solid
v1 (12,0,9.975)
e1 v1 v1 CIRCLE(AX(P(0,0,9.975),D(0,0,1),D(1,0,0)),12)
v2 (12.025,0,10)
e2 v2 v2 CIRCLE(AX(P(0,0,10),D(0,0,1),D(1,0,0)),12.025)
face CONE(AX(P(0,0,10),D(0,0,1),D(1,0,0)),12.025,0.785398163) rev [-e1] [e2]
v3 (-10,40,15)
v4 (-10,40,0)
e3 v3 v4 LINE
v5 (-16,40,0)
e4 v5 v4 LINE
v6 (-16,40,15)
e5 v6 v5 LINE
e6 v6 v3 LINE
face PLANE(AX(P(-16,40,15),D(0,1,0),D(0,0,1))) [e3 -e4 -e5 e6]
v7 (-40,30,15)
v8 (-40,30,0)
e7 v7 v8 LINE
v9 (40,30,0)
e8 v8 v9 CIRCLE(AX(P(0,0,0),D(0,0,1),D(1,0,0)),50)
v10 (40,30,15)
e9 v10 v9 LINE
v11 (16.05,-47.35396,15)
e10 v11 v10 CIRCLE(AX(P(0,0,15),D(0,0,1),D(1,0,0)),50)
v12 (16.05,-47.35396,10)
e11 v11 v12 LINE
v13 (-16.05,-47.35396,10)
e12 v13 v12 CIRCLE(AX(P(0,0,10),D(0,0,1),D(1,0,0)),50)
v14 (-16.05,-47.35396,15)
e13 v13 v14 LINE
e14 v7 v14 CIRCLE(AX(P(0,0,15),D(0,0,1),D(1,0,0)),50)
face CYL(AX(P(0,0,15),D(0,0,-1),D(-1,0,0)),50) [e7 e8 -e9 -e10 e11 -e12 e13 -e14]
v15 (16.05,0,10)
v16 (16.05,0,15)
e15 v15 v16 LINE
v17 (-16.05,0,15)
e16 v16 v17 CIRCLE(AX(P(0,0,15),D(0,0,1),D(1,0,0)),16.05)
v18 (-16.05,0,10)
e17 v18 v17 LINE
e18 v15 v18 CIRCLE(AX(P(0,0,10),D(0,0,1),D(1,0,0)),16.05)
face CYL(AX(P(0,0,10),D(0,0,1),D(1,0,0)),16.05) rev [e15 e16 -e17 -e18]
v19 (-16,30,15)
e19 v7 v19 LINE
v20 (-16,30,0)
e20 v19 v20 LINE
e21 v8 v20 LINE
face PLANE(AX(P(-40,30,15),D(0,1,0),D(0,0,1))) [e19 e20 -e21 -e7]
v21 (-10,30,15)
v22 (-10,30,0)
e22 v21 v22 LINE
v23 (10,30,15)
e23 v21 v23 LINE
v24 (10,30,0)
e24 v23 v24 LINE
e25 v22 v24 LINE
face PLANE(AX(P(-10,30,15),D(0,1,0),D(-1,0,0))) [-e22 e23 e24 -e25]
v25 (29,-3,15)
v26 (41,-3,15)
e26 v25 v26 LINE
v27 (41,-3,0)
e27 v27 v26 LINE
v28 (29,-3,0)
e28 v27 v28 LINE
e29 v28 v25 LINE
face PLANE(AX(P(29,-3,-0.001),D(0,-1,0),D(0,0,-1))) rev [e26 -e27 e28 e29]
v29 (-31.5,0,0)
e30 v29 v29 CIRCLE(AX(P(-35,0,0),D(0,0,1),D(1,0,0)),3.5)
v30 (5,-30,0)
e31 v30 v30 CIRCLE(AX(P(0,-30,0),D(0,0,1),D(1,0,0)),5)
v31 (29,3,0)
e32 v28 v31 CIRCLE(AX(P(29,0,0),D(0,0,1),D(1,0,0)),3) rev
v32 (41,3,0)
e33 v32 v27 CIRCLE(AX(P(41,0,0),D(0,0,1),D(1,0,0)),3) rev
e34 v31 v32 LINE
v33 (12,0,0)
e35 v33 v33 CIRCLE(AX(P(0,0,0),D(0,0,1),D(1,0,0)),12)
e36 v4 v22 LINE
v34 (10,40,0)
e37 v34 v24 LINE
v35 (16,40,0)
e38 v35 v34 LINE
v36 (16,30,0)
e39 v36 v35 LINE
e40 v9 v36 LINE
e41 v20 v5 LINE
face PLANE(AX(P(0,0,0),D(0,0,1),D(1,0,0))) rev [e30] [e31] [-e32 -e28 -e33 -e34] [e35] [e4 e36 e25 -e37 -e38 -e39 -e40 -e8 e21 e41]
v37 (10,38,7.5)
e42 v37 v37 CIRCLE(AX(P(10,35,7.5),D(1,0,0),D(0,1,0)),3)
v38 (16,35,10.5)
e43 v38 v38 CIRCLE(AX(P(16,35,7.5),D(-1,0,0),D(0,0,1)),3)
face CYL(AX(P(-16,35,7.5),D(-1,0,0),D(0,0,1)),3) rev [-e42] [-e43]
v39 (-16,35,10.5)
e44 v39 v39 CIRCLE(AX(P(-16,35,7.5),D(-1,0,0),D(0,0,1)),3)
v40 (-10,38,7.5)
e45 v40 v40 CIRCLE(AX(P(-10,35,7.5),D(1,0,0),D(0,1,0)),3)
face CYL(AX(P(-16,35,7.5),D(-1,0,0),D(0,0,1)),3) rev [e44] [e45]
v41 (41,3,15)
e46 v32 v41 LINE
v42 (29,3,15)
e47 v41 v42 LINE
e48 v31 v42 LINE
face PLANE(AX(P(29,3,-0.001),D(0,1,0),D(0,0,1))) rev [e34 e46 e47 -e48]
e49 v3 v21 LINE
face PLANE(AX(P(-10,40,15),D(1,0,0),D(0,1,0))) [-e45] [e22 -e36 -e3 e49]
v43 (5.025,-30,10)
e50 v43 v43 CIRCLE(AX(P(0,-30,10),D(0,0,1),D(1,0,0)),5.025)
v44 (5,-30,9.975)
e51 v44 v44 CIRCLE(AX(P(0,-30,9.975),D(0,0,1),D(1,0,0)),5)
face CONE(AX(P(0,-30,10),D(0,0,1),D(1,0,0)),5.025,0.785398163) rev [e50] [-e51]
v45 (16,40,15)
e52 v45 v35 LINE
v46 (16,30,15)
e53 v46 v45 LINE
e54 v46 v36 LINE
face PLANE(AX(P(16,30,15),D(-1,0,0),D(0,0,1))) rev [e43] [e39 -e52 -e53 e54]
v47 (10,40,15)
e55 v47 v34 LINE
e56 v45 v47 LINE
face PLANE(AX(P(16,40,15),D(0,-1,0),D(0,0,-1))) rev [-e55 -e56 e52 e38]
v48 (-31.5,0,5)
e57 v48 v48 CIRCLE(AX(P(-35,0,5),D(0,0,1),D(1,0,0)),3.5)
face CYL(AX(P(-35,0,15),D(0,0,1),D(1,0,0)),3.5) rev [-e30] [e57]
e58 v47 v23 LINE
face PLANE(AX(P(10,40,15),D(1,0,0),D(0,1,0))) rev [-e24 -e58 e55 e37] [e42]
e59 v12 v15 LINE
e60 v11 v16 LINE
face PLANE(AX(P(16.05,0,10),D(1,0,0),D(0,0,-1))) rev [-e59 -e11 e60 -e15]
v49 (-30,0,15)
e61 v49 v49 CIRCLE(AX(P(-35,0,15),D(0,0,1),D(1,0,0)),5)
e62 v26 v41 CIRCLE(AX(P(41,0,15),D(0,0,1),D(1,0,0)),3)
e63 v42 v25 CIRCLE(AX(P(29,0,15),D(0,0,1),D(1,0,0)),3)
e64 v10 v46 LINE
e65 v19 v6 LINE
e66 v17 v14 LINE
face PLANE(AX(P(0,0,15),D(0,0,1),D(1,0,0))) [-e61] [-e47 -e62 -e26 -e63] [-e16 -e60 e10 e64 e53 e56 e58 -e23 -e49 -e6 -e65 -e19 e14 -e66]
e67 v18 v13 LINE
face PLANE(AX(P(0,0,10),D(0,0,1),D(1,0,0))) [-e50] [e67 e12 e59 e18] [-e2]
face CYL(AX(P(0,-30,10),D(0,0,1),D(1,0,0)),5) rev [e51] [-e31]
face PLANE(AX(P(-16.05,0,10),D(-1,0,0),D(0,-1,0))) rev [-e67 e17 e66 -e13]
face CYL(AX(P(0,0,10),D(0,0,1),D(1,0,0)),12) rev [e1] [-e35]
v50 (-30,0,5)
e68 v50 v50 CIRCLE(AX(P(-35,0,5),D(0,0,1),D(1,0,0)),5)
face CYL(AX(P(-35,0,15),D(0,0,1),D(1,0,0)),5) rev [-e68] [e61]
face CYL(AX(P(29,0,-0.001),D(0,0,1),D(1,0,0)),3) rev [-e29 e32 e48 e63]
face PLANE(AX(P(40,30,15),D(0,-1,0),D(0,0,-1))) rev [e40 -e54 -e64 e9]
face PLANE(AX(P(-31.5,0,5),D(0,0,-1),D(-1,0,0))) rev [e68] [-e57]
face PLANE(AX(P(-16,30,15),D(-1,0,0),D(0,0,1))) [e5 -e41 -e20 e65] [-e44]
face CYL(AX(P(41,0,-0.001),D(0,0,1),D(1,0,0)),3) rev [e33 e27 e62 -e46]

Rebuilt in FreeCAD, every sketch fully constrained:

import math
import FreeCAD as App
import Part
import Sketcher
Q = App.Units.Quantity

doc = App.newDocument("Part")
body = doc.addObject("PartDesign::Body", "Body")

sketch1 = doc.addObject("Sketcher::SketchObject", "Sketch")
body.addObject(sketch1)
sketch1.AttachmentSupport = (doc.XY_Plane, [""])
sketch1.MapMode = "FlatFace"
sketch1.addGeometry([
    Part.LineSegment(App.Vector(-16, 30, 0), App.Vector(-40, 30, 0)),
    Part.ArcOfCircle(Part.Circle(App.Vector(0, 0, 0), App.Vector(0, 0, 1), 50), math.radians(143), math.radians(397)),
    Part.LineSegment(App.Vector(40, 30, 0), App.Vector(16, 30, 0)),
    Part.LineSegment(App.Vector(16, 30, 0), App.Vector(16, 40, 0)),
    Part.LineSegment(App.Vector(16, 40, 0), App.Vector(10, 40, 0)),
    Part.LineSegment(App.Vector(10, 40, 0), App.Vector(10, 30, 0)),
    Part.LineSegment(App.Vector(10, 30, 0), App.Vector(-10, 30, 0)),
    Part.LineSegment(App.Vector(-10, 30, 0), App.Vector(-10, 40, 0)),
    Part.LineSegment(App.Vector(-10, 40, 0), App.Vector(-16, 40, 0)),
    Part.LineSegment(App.Vector(-16, 40, 0), App.Vector(-16, 30, 0)),
], False)
sketch1.addConstraint([
    Sketcher.Constraint("Coincident", 0, 2, 1, 1),
    Sketcher.Constraint("Coincident", 1, 2, 2, 1),
    Sketcher.Constraint("Coincident", 2, 2, 3, 1),
    Sketcher.Constraint("Coincident", 3, 2, 4, 1),
    Sketcher.Constraint("Coincident", 4, 2, 5, 1),
    Sketcher.Constraint("Coincident", 5, 2, 6, 1),
    Sketcher.Constraint("Coincident", 6, 2, 7, 1),
    Sketcher.Constraint("Coincident", 7, 2, 8, 1),
    Sketcher.Constraint("Coincident", 8, 2, 9, 1),
    Sketcher.Constraint("Coincident", 9, 2, 0, 1),
    Sketcher.Constraint("Horizontal", 0),
    Sketcher.Constraint("Horizontal", 2),
    Sketcher.Constraint("Vertical", 3),
    Sketcher.Constraint("Horizontal", 4),
    Sketcher.Constraint("Vertical", 5),
    Sketcher.Constraint("Horizontal", 6),
    Sketcher.Constraint("Vertical", 7),
    Sketcher.Constraint("Horizontal", 8),
    Sketcher.Constraint("Vertical", 9),
    Sketcher.Constraint("Coincident", 1, 3, -1, 1),
    Sketcher.Constraint("Symmetric", 4, 2, 7, 2, -2),
    Sketcher.Constraint("Symmetric", 2, 2, 9, 2, -2),
    Sketcher.Constraint("Horizontal", 2, 2, 5, 2),
    Sketcher.Constraint("Radius", 1, 50.0),
    Sketcher.Constraint("DistanceX", 0, 2, 0, 1, 24.0),
    Sketcher.Constraint("DistanceX", 4, 2, 4, 1, 6.0),
    Sketcher.Constraint("DistanceX", 6, 2, 6, 1, 20.0),
    Sketcher.Constraint("DistanceY", 3, 1, 3, 2, 10.0),
])
pad1 = doc.addObject("PartDesign::Pad", "Pad")
body.addObject(pad1)
pad1.Profile = sketch1
pad1.Length = 15

sketch2 = doc.addObject("Sketcher::SketchObject", "Sketch001")
body.addObject(sketch2)
sketch2.AttachmentSupport = (doc.XY_Plane, [""])
sketch2.MapMode = "FlatFace"
sketch2.AttachmentOffset = App.Placement(App.Vector(0, 0, 15), App.Rotation())
sketch2.addGeometry([
    Part.LineSegment(App.Vector(16, -60, 0), App.Vector(16, 0, 0)),
    Part.ArcOfCircle(Part.Circle(App.Vector(0, 0, 0), App.Vector(0, 0, 1), 16), math.radians(0), math.radians(180)),
    Part.LineSegment(App.Vector(-16, 0, 0), App.Vector(-16, -60, 0)),
    Part.ArcOfCircle(Part.Circle(App.Vector(0, -60, 0), App.Vector(0, 0, 1), 16), math.radians(180), math.radians(360)),
], False)
sketch2.addConstraint([
    Sketcher.Constraint("Tangent", 0, 2, 1, 1),
    Sketcher.Constraint("Tangent", 1, 2, 2, 1),
    Sketcher.Constraint("Tangent", 2, 2, 3, 1),
    Sketcher.Constraint("Tangent", 3, 2, 0, 1),
    Sketcher.Constraint("Vertical", 0),
    Sketcher.Constraint("Vertical", 2),
    Sketcher.Constraint("Coincident", 1, 3, -1, 1),
    Sketcher.Constraint("DistanceY", 0, 1, 0, 2, 60.0),
    Sketcher.Constraint("Radius", 1, 16.05),
])
pocket1 = doc.addObject("PartDesign::Pocket", "Pocket")
body.addObject(pocket1)
pocket1.Profile = sketch2
pocket1.Length = 5

sketch3 = doc.addObject("Sketcher::SketchObject", "Sketch002")
body.addObject(sketch3)
sketch3.AttachmentSupport = (doc.XY_Plane, [""])
sketch3.MapMode = "FlatFace"
sketch3.AttachmentOffset = App.Placement(App.Vector(0, 0, 15), App.Rotation())
sketch3.addGeometry([
    Part.LineSegment(App.Vector(41, 3, 0), App.Vector(29, 3, 0)),
    Part.ArcOfCircle(Part.Circle(App.Vector(29, 0, 0), App.Vector(0, 0, 1), 3), math.radians(90), math.radians(270)),
    Part.LineSegment(App.Vector(29, -3, 0), App.Vector(41, -3, 0)),
    Part.ArcOfCircle(Part.Circle(App.Vector(41, 0, 0), App.Vector(0, 0, 1), 3), math.radians(-90), math.radians(90)),
], False)
sketch3.addConstraint([
    Sketcher.Constraint("Tangent", 0, 2, 1, 1),
    Sketcher.Constraint("Tangent", 1, 2, 2, 1),
    Sketcher.Constraint("Tangent", 2, 2, 3, 1),
    Sketcher.Constraint("Tangent", 3, 2, 0, 1),
    Sketcher.Constraint("Horizontal", 0),
    Sketcher.Constraint("Horizontal", 2),
    Sketcher.Constraint("PointOnObject", 1, 3, -1),
    Sketcher.Constraint("Radius", 1, 3.0),
    Sketcher.Constraint("DistanceX", 0, 2, 0, 1, 12.0),
    Sketcher.Constraint("DistanceX", -1, 1, 1, 3, 29.0),
])
pocket2 = doc.addObject("PartDesign::Pocket", "Pocket001")
body.addObject(pocket2)
pocket2.Profile = sketch3
pocket2.Type = "UpToFirst"

sketch4 = doc.addObject("Sketcher::SketchObject", "Sketch003")
body.addObject(sketch4)
sketch4.AttachmentSupport = (doc.YZ_Plane, [""])
sketch4.MapMode = "FlatFace"
sketch4.addGeometry([
    Part.LineSegment(App.Vector(0, -0.001, 0), App.Vector(0, 10, 0)),
    Part.LineSegment(App.Vector(0, 10, 0), App.Vector(-12.025, 10, 0)),
    Part.LineSegment(App.Vector(-12.025, 10, 0), App.Vector(-12, 9.975, 0)),
    Part.LineSegment(App.Vector(-12, 9.975, 0), App.Vector(-12, -0.001, 0)),
    Part.LineSegment(App.Vector(-12, -0.001, 0), App.Vector(0, -0.001, 0)),
], False)
sketch4.addConstraint([
    Sketcher.Constraint("Coincident", 0, 2, 1, 1),
    Sketcher.Constraint("Coincident", 1, 2, 2, 1),
    Sketcher.Constraint("Coincident", 2, 2, 3, 1),
    Sketcher.Constraint("Coincident", 3, 2, 4, 1),
    Sketcher.Constraint("Coincident", 4, 2, 0, 1),
    Sketcher.Constraint("Vertical", 0),
    Sketcher.Constraint("Horizontal", 1),
    Sketcher.Constraint("Vertical", 3),
    Sketcher.Constraint("Horizontal", 4),
    Sketcher.Constraint("PointOnObject", 0, 2, -2),
    Sketcher.Constraint("DistanceX", 4, 1, 4, 2, 12.0),
    Sketcher.Constraint("Angle", 2, Q("-45 deg")),
    Sketcher.Constraint("DistanceY", -1, 1, 0, 2, 10.0),
    Sketcher.Constraint("DistanceX", 1, 2, 1, 1, 12.025),
    Sketcher.Constraint("DistanceY", 0, 1, 0, 2, 10.001),
])
groove = doc.addObject("PartDesign::Groove", "Groove")
body.addObject(groove)
groove.Profile = sketch4
groove.ReferenceAxis = (sketch4, ["V_Axis"])
groove.Angle = 360

sketch5 = doc.addObject("Sketcher::SketchObject", "Sketch004")
body.addObject(sketch5)
sketch5.AttachmentSupport = (doc.YZ_Plane, [""])
sketch5.MapMode = "FlatFace"
sketch5.addGeometry([
    Part.LineSegment(App.Vector(-30, -0.001, 0), App.Vector(-30, 10, 0)),
    Part.LineSegment(App.Vector(-30, 10, 0), App.Vector(-35.025, 10, 0)),
    Part.LineSegment(App.Vector(-35.025, 10, 0), App.Vector(-35, 9.975, 0)),
    Part.LineSegment(App.Vector(-35, 9.975, 0), App.Vector(-35, -0.001, 0)),
    Part.LineSegment(App.Vector(-35, -0.001, 0), App.Vector(-30, -0.001, 0)),
], False)
sketch5.addGeometry(Part.LineSegment(App.Vector(-30, 10, 0), App.Vector(-30, -0.001, 0)), True)
sketch5.addConstraint([
    Sketcher.Constraint("Coincident", 0, 2, 1, 1),
    Sketcher.Constraint("Coincident", 1, 2, 2, 1),
    Sketcher.Constraint("Coincident", 2, 2, 3, 1),
    Sketcher.Constraint("Coincident", 3, 2, 4, 1),
    Sketcher.Constraint("Coincident", 4, 2, 0, 1),
    Sketcher.Constraint("Vertical", 0),
    Sketcher.Constraint("Horizontal", 1),
    Sketcher.Constraint("Vertical", 3),
    Sketcher.Constraint("Horizontal", 4),
    Sketcher.Constraint("Vertical", 5),
    Sketcher.Constraint("Coincident", 5, 1, 0, 2),
    Sketcher.Constraint("Horizontal", 3, 2, 5, 2),
    Sketcher.Constraint("DistanceX", 4, 1, 4, 2, 5.0),
    Sketcher.Constraint("Angle", 2, Q("-45 deg")),
    Sketcher.Constraint("DistanceX", 0, 2, -1, 1, 30.0),
    Sketcher.Constraint("DistanceY", -1, 1, 0, 2, 10.0),
    Sketcher.Constraint("DistanceX", 1, 2, 1, 1, 5.025),
    Sketcher.Constraint("DistanceY", 0, 1, 0, 2, 10.001),
])
groove2 = doc.addObject("PartDesign::Groove", "Groove001")
body.addObject(groove2)
groove2.Profile = sketch5
groove2.ReferenceAxis = (sketch5, ["Axis0"])
groove2.Angle = 360

sketch6 = doc.addObject("Sketcher::SketchObject", "Sketch005")
body.addObject(sketch6)
sketch6.AttachmentSupport = (doc.YZ_Plane, [""])
sketch6.MapMode = "FlatFace"
sketch6.AttachmentOffset = App.Placement(App.Vector(0, 0, -35), App.Rotation())
sketch6.addGeometry([
    Part.LineSegment(App.Vector(0, 0, 0), App.Vector(0, 15, 0)),
    Part.LineSegment(App.Vector(0, 15, 0), App.Vector(-5, 15, 0)),
    Part.LineSegment(App.Vector(-5, 15, 0), App.Vector(-5, 5, 0)),
    Part.LineSegment(App.Vector(-5, 5, 0), App.Vector(-3.5, 5, 0)),
    Part.LineSegment(App.Vector(-3.5, 5, 0), App.Vector(-3.5, 0, 0)),
    Part.LineSegment(App.Vector(-3.5, 0, 0), App.Vector(0, 0, 0)),
], False)
sketch6.addConstraint([
    Sketcher.Constraint("Coincident", 0, 2, 1, 1),
    Sketcher.Constraint("Coincident", 1, 2, 2, 1),
    Sketcher.Constraint("Coincident", 2, 2, 3, 1),
    Sketcher.Constraint("Coincident", 3, 2, 4, 1),
    Sketcher.Constraint("Coincident", 4, 2, 5, 1),
    Sketcher.Constraint("Coincident", 5, 2, 0, 1),
    Sketcher.Constraint("Vertical", 0),
    Sketcher.Constraint("Horizontal", 1),
    Sketcher.Constraint("Vertical", 2),
    Sketcher.Constraint("Horizontal", 3),
    Sketcher.Constraint("Vertical", 4),
    Sketcher.Constraint("Horizontal", 5),
    Sketcher.Constraint("PointOnObject", 0, 2, -2),
    Sketcher.Constraint("DistanceX", 1, 2, 1, 1, 5.0),
    Sketcher.Constraint("DistanceY", 2, 2, 2, 1, 10.0),
    Sketcher.Constraint("DistanceX", 3, 1, 3, 2, 1.5),
    Sketcher.Constraint("DistanceY", -1, 1, 0, 2, 15.0),
    Sketcher.Constraint("DistanceY", 0, 1, 0, 2, 15.001),
])
groove3 = doc.addObject("PartDesign::Groove", "Groove002")
body.addObject(groove3)
groove3.Profile = sketch6
groove3.ReferenceAxis = (sketch6, ["V_Axis"])
groove3.Angle = 360

sketch7 = doc.addObject("Sketcher::SketchObject", "Sketch006")
body.addObject(sketch7)
sketch7.AttachmentSupport = (doc.YZ_Plane, [""])
sketch7.MapMode = "FlatFace"
sketch7.AttachmentOffset = App.Placement(App.Vector(0, 0, -16), App.Rotation())
sketch7.addGeometry(Part.Circle(App.Vector(35, 7.5, 0), App.Vector(0, 0, 1), 3), False)
sketch7.addConstraint([
    Sketcher.Constraint("Diameter", 0, 6.0),
    Sketcher.Constraint("DistanceX", -1, 1, 0, 3, 35.0),
    Sketcher.Constraint("DistanceY", -1, 1, 0, 3, 7.5),
])
doc.recompute()
hole = doc.addObject("PartDesign::Hole", "Hole")
body.addObject(hole)
hole.Profile = sketch7
hole.ThreadType = "None"
hole.Diameter = 6
hole.DepthType = "ThroughAll"
hole.Reversed = True

doc.recompute()
